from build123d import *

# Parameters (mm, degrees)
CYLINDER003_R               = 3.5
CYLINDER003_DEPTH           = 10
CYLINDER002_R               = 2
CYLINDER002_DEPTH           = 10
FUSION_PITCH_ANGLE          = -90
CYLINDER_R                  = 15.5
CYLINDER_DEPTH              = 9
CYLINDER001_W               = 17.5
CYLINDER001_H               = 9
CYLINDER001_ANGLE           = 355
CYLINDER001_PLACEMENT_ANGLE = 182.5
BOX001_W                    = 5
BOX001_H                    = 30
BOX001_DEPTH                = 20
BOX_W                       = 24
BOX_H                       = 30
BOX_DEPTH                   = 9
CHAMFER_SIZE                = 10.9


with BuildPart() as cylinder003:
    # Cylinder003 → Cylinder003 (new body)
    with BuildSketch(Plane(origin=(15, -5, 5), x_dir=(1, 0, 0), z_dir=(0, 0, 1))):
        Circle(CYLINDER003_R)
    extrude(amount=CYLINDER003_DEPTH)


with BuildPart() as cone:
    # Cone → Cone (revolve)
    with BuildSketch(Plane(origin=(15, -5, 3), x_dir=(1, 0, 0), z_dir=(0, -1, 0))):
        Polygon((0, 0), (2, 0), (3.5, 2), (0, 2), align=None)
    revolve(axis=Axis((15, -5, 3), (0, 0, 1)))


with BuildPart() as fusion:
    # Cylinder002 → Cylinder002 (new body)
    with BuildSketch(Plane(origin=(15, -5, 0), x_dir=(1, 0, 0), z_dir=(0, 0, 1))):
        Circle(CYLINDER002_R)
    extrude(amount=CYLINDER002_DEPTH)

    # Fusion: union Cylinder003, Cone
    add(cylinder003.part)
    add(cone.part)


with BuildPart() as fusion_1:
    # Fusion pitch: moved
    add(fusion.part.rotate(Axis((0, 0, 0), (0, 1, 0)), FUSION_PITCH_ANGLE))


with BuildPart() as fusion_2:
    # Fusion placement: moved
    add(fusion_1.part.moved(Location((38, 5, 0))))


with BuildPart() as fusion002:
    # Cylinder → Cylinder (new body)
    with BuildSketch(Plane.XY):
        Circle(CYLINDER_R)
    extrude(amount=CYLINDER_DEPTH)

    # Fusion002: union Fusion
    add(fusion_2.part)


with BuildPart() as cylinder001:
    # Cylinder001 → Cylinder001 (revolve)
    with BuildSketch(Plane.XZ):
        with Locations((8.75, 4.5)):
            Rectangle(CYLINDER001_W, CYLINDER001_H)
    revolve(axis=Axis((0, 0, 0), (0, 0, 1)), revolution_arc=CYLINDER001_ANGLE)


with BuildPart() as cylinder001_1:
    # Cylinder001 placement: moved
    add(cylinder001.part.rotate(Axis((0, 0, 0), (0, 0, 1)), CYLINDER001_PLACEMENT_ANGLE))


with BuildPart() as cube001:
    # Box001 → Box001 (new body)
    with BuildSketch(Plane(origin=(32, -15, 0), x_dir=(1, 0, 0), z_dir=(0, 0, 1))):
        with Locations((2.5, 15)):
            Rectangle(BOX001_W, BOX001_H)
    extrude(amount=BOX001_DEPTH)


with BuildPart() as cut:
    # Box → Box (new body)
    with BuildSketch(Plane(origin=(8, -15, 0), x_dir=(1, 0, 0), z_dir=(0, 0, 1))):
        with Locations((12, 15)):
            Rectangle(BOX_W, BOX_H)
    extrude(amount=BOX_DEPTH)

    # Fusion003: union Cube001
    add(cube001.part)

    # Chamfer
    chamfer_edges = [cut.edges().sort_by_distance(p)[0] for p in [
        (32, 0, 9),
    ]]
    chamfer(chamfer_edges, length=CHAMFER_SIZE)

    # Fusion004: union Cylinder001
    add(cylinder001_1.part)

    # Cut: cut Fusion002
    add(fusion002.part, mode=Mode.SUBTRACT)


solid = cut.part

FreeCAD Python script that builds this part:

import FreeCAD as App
import Part
import Sketcher
Q = App.Units.Quantity


def edges_at(feature, points):
    """Names of the edges that pass closest to the given points."""
    edges = feature.Shape.Edges
    near = lambda p: min(range(len(edges)), key=lambda i: edges[i].distToShape(Part.Vertex(*p))[0])
    return sorted({f"Edge{near(p) + 1}" for p in points})


def add_polygon(sketch, points):
    """Adds a closed chain of lines whose ends are joined by coincident constraints."""
    first, n = sketch.GeometryCount, len(points)
    for a, b in zip(points, points[1:] + points[:1]):
        sketch.addGeometry(Part.LineSegment(App.Vector(*a, 0), App.Vector(*b, 0)), False)
    for i in range(n):
        sketch.addConstraint(Sketcher.Constraint("Coincident", first + i, 2, first + (i + 1) % n, 1))

doc = App.newDocument("Part")
body = doc.addObject("PartDesign::Body", "Body")

sketch1 = doc.addObject("Sketcher::SketchObject", "Sketch")
body.addObject(sketch1)
sketch1.AttachmentSupport = (doc.XY_Plane, [""])
sketch1.MapMode = "FlatFace"
sketch1.AttachmentOffset = App.Placement(App.Vector(0, 0, 5), App.Rotation())
sketch1.addGeometry(Part.Circle(App.Vector(15, -5, 0), App.Vector(0, 0, 1), 3.5), False)
sketch1.addConstraint([
    Sketcher.Constraint("Diameter", 0, Q("7 mm")),
    Sketcher.Constraint("DistanceX", -1, 1, 0, 3, Q("15 mm")),
    Sketcher.Constraint("DistanceY", 0, 3, -1, 1, Q("5 mm")),
])
pad1 = doc.addObject("PartDesign::Pad", "Pad")
body.addObject(pad1)
pad1.Profile = sketch1
pad1.Length = 10
body2 = doc.addObject("PartDesign::Body", "Body001")

sketch2 = doc.addObject("Sketcher::SketchObject", "Sketch001")
body2.addObject(sketch2)
sketch2.AttachmentSupport = (doc.getObject("XZ_Plane001"), [""])
sketch2.MapMode = "FlatFace"
sketch2.AttachmentOffset = App.Placement(App.Vector(0, 0, 5), App.Rotation())
add_polygon(sketch2, [(15, 3), (17, 3), (18.5, 5), (15, 5)])
sketch2.addGeometry(Part.LineSegment(App.Vector(15, 3, 0), App.Vector(15, 5, 0)), True)
sketch2.addConstraint([
    Sketcher.Constraint("Horizontal", 0),
    Sketcher.Constraint("Horizontal", 2),
    Sketcher.Constraint("Vertical", 3),
    Sketcher.Constraint("Vertical", 4),
    Sketcher.Constraint("Coincident", 4, 1, 3, 2),
    Sketcher.Constraint("Horizontal", 1, 2, 4, 2),
    Sketcher.Constraint("Equal", 0, 3),
    Sketcher.Constraint("DistanceX", 0, 1, 0, 2, Q("2 mm")),
    Sketcher.Constraint("DistanceX", 2, 2, 2, 1, Q("3.5 mm")),
    Sketcher.Constraint("DistanceX", -1, 1, 0, 2, Q("17 mm")),
    Sketcher.Constraint("DistanceY", -1, 1, 0, 2, Q("3 mm")),
])
revolution = doc.addObject("PartDesign::Revolution", "Revolution")
body2.addObject(revolution)
revolution.Profile = sketch2
revolution.ReferenceAxis = (sketch2, ["Axis0"])
revolution.Angle = 360
body3 = doc.addObject("PartDesign::Body", "Body002")

sketch3 = doc.addObject("Sketcher::SketchObject", "Sketch002")
body3.addObject(sketch3)
sketch3.AttachmentSupport = (doc.getObject("XY_Plane002"), [""])
sketch3.MapMode = "FlatFace"
sketch3.addGeometry(Part.Circle(App.Vector(15, -5, 0), App.Vector(0, 0, 1), 2), False)
sketch3.addConstraint([
    Sketcher.Constraint("Diameter", 0, Q("4 mm")),
    Sketcher.Constraint("DistanceX", -1, 1, 0, 3, Q("15 mm")),
    Sketcher.Constraint("DistanceY", 0, 3, -1, 1, Q("5 mm")),
])
pad2 = doc.addObject("PartDesign::Pad", "Pad001")
body3.addObject(pad2)
pad2.Profile = sketch3
pad2.Length = 10
doc.recompute()

boolean = doc.addObject("PartDesign::Boolean", "Boolean")
body3.addObject(boolean)
boolean.Type = "Fuse"
boolean.addObjects([body])
doc.recompute()

boolean2 = doc.addObject("PartDesign::Boolean", "Boolean001")
body3.addObject(boolean2)
boolean2.Type = "Fuse"
boolean2.addObjects([body2])
body4 = doc.addObject("PartDesign::Body", "Body003")
doc.recompute()

body3.Placement = App.Placement(App.Vector(0, 0, 0), App.Rotation(App.Vector(0, 1, 0), 270))
boolean3 = doc.addObject("PartDesign::Boolean", "Boolean002")
body4.addObject(boolean3)
boolean3.Type = "Fuse"
boolean3.addObjects([body3])
body5 = doc.addObject("PartDesign::Body", "Body004")
doc.recompute()

body4.Placement = App.Placement(App.Vector(38, 5, 0), App.Rotation(App.Vector(0, 0, 1), 0))
boolean4 = doc.addObject("PartDesign::Boolean", "Boolean003")
body5.addObject(boolean4)
boolean4.Type = "Fuse"
boolean4.addObjects([body4])
body6 = doc.addObject("PartDesign::Body", "Body005")
body6.AllowCompound = True

sketch4 = doc.addObject("Sketcher::SketchObject", "Sketch003")
body6.addObject(sketch4)
sketch4.AttachmentSupport = (doc.getObject("XY_Plane005"), [""])
sketch4.MapMode = "FlatFace"
sketch4.addGeometry(Part.Circle(App.Vector(0, 0, 0), App.Vector(0, 0, 1), 16), False)
sketch4.addConstraint([
    Sketcher.Constraint("Coincident", 0, 3, -1, 1),
    Sketcher.Constraint("Diameter", 0, Q("31 mm")),
])
pad3 = doc.addObject("PartDesign::Pad", "Pad002")
body6.addObject(pad3)
pad3.Profile = sketch4
pad3.Length = 9
doc.recompute()

boolean5 = doc.addObject("PartDesign::Boolean", "Boolean004")
body6.addObject(boolean5)
boolean5.Type = "Fuse"
boolean5.addObjects([body5])
body7 = doc.addObject("PartDesign::Body", "Body006")

sketch5 = doc.addObject("Sketcher::SketchObject", "Sketch004")
body7.addObject(sketch5)
sketch5.AttachmentSupport = (doc.getObject("XZ_Plane006"), [""])
sketch5.MapMode = "FlatFace"
add_polygon(sketch5, [(0, 9), (0, 0), (18, 0), (18, 9)])
sketch5.addConstraint([
    Sketcher.Constraint("Vertical", 0),
    Sketcher.Constraint("Horizontal", 1),
    Sketcher.Constraint("Vertical", 2),
    Sketcher.Constraint("Horizontal", 3),
    Sketcher.Constraint("Coincident", 0, 2, -1, 1),
    Sketcher.Constraint("DistanceY", 0, 2, 0, 1, Q("9 mm")),
    Sketcher.Constraint("DistanceX", 1, 1, 1, 2, Q("17.5 mm")),
])
revolution2 = doc.addObject("PartDesign::Revolution", "Revolution001")
body7.addObject(revolution2)
revolution2.Profile = sketch5
revolution2.ReferenceAxis = (sketch5, ["V_Axis"])
revolution2.Angle = 355
body8 = doc.addObject("PartDesign::Body", "Body007")
doc.recompute()

body7.Placement = App.Placement(App.Vector(0, 0, 0), App.Rotation(App.Vector(0, 0, 1), 182.5))
boolean6 = doc.addObject("PartDesign::Boolean", "Boolean005")
body8.addObject(boolean6)
boolean6.Type = "Fuse"
boolean6.addObjects([body7])
body9 = doc.addObject("PartDesign::Body", "Body008")

sketch6 = doc.addObject("Sketcher::SketchObject", "Sketch005")
body9.addObject(sketch6)
sketch6.AttachmentSupport = (doc.getObject("XY_Plane008"), [""])
sketch6.MapMode = "FlatFace"
add_polygon(sketch6, [(32, 15), (32, -15), (37, -15), (37, 15)])
sketch6.addConstraint([
    Sketcher.Constraint("Vertical", 0),
    Sketcher.Constraint("Horizontal", 1),
    Sketcher.Constraint("Vertical", 2),
    Sketcher.Constraint("Horizontal", 3),
    Sketcher.Constraint("DistanceX", 1, 1, 1, 2, Q("5 mm")),
    Sketcher.Constraint("DistanceY", 0, 2, 0, 1, Q("30 mm")),
    Sketcher.Constraint("DistanceX", -1, 1, 0, 2, Q("32 mm")),
    Sketcher.Constraint("DistanceY", 0, 2, -1, 1, Q("15 mm")),
])
pad4 = doc.addObject("PartDesign::Pad", "Pad003")
body9.addObject(pad4)
pad4.Profile = sketch6
pad4.Length = 20
body10 = doc.addObject("PartDesign::Body", "Body009")

sketch7 = doc.addObject("Sketcher::SketchObject", "Sketch006")
body10.addObject(sketch7)
sketch7.AttachmentSupport = (doc.getObject("XY_Plane009"), [""])
sketch7.MapMode = "FlatFace"
add_polygon(sketch7, [(8, 15), (8, -15), (32, -15), (32, 15)])
sketch7.addConstraint([
    Sketcher.Constraint("Vertical", 0),
    Sketcher.Constraint("Horizontal", 1),
    Sketcher.Constraint("Vertical", 2),
    Sketcher.Constraint("Horizontal", 3),
    Sketcher.Constraint("DistanceX", 1, 1, 1, 2, Q("24 mm")),
    Sketcher.Constraint("DistanceY", 0, 2, 0, 1, Q("30 mm")),
    Sketcher.Constraint("DistanceX", -1, 1, 0, 2, Q("8 mm")),
    Sketcher.Constraint("DistanceY", 0, 2, -1, 1, Q("15 mm")),
])
pad5 = doc.addObject("PartDesign::Pad", "Pad004")
body10.addObject(pad5)
pad5.Profile = sketch7
pad5.Length = 9
doc.recompute()

boolean7 = doc.addObject("PartDesign::Boolean", "Boolean006")
body10.addObject(boolean7)
boolean7.Type = "Fuse"
boolean7.addObjects([body9])
doc.recompute()

chamfer = doc.addObject("PartDesign::Chamfer", "Chamfer")
body10.addObject(chamfer)
chamfer.Base = (boolean7, edges_at(boolean7, [(32, 0, 9)]))
chamfer.Size = 10.9
doc.recompute()

boolean8 = doc.addObject("PartDesign::Boolean", "Boolean007")
body10.addObject(boolean8)
boolean8.Type = "Fuse"
boolean8.addObjects([body8])
doc.recompute()

boolean9 = doc.addObject("PartDesign::Boolean", "Boolean008")
body10.addObject(boolean9)
boolean9.Type = "Cut"
boolean9.addObjects([body6])

doc.recompute()
